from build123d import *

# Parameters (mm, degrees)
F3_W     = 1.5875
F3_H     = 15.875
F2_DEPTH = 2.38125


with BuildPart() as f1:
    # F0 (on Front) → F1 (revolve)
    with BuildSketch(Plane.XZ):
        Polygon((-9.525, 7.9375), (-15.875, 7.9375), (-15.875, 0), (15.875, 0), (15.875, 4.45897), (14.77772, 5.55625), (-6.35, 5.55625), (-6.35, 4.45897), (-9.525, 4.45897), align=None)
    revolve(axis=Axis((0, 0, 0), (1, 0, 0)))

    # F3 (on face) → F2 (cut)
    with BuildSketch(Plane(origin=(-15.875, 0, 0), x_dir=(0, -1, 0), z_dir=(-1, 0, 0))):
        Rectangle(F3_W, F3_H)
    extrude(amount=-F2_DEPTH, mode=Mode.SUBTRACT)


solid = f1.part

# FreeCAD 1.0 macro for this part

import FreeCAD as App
import Part
import Sketcher
Q = App.Units.Quantity

doc = App.newDocument("Part")
params = doc.addObject("Spreadsheet::Sheet", "Params")
for row, (alias, value) in enumerate([
    ("sketch1_width", "0.25 in"),
    ("sketch1_width2", "1.25 in"),
    ("sketch1_width3", "0.125 in"),
    ("sketch1_height", "0.3125 in"),
    ("revolution_angle", "360 deg"),
    ("sketch2_width", "0.0625 in"),
    ("sketch2_height", "0.625 in"),
    ("pocket1_length", "0.09375 in"),
], start=1):
    params.set(f"A{row}", alias)
    params.set(f"B{row}", "=" + value)
    params.setAlias(f"B{row}", alias)

body = doc.addObject("PartDesign::Body", "Body")

sketch1 = body.newObject("Sketcher::SketchObject", "Sketch")
sketch1.AttachmentSupport = (doc.getObject("XZ_Plane"), [""])
sketch1.MapMode = "FlatFace"
sketch1.addGeometry([
    Part.LineSegment(App.Vector(-9.5, 7.9, 0), App.Vector(-15.9, 7.9, 0)),
    Part.LineSegment(App.Vector(-15.9, 7.9, 0), App.Vector(-15.9, 0, 0)),
    Part.LineSegment(App.Vector(-15.9, 0, 0), App.Vector(15.9, 0, 0)),
    Part.LineSegment(App.Vector(15.9, 0, 0), App.Vector(15.9, 4.5, 0)),
    Part.LineSegment(App.Vector(15.9, 4.5, 0), App.Vector(14.8, 5.6, 0)),
    Part.LineSegment(App.Vector(14.8, 5.6, 0), App.Vector(-6.3, 5.6, 0)),
    Part.LineSegment(App.Vector(-6.3, 5.6, 0), App.Vector(-6.3, 4.5, 0)),
    Part.LineSegment(App.Vector(-6.3, 4.5, 0), App.Vector(-9.5, 4.5, 0)),
    Part.LineSegment(App.Vector(-9.5, 4.5, 0), App.Vector(-9.5, 7.9, 0)),
], False)
sketch1.addConstraint([
    Sketcher.Constraint("Coincident", 0, 2, 1, 1),
    Sketcher.Constraint("Coincident", 1, 2, 2, 1),
    Sketcher.Constraint("Coincident", 2, 2, 3, 1),
    Sketcher.Constraint("Coincident", 3, 2, 4, 1),
    Sketcher.Constraint("Coincident", 4, 2, 5, 1),
    Sketcher.Constraint("Coincident", 5, 2, 6, 1),
    Sketcher.Constraint("Coincident", 6, 2, 7, 1),
    Sketcher.Constraint("Coincident", 7, 2, 8, 1),
    Sketcher.Constraint("Coincident", 8, 2, 0, 1),
    Sketcher.Constraint("Horizontal", 0),
    Sketcher.Constraint("Vertical", 1),
    Sketcher.Constraint("Horizontal", 2),
    Sketcher.Constraint("Vertical", 3),
    Sketcher.Constraint("Horizontal", 5),
    Sketcher.Constraint("Vertical", 6),
    Sketcher.Constraint("Horizontal", 7),
    Sketcher.Constraint("Vertical", 8),
    Sketcher.Constraint("Symmetric", 1, 2, 2, 2, -1, 1),
    Sketcher.Constraint("Horizontal", 3, 2, 6, 2),
    Sketcher.Constraint("Angle", 4, Q("135 deg")),
    Sketcher.Constraint("DistanceX", 0, 2, 0, 1, Q("0.25 in")),
    Sketcher.Constraint("DistanceX", 2, 1, 2, 2, Q("1.25 in")),
    Sketcher.Constraint("DistanceX", 7, 2, 7, 1, Q("0.125 in")),
    Sketcher.Constraint("DistanceY", 1, 2, 1, 1, Q("0.3125 in")),
    Sketcher.Constraint("DistanceX", 5, 2, 5, 1, Q("0.8318 in")),
    Sketcher.Constraint("DistanceY", -1, 1, 4, 2, Q("0.21875 in")),
])
sketch1.setExpression("Constraints[20]", "Params.sketch1_width")
sketch1.setExpression("Constraints[21]", "Params.sketch1_width2")
sketch1.setExpression("Constraints[22]", "Params.sketch1_width3")
sketch1.setExpression("Constraints[23]", "Params.sketch1_height")
revolution = body.newObject("PartDesign::Revolution", "Revolution")
revolution.Profile = sketch1
revolution.ReferenceAxis = (sketch1, ["H_Axis"])
revolution.setExpression("Angle", "Params.revolution_angle")

sketch2 = body.newObject("Sketcher::SketchObject", "Sketch001")
sketch2.AttachmentSupport = (doc.getObject("YZ_Plane"), [""])
sketch2.MapMode = "FlatFace"
sketch2.AttachmentOffset = App.Placement(App.Vector(0, 0, -0.625 * 25.4), App.Rotation())
sketch2.addGeometry([
    Part.LineSegment(App.Vector(0.8, 7.9, 0), App.Vector(0.8, -7.9, 0)),
    Part.LineSegment(App.Vector(0.8, -7.9, 0), App.Vector(-0.8, -7.9, 0)),
    Part.LineSegment(App.Vector(-0.8, -7.9, 0), App.Vector(-0.8, 7.9, 0)),
    Part.LineSegment(App.Vector(-0.8, 7.9, 0), App.Vector(0.8, 7.9, 0)),
], False)
sketch2.addConstraint([
    Sketcher.Constraint("Coincident", 0, 2, 1, 1),
    Sketcher.Constraint("Coincident", 1, 2, 2, 1),
    Sketcher.Constraint("Coincident", 2, 2, 3, 1),
    Sketcher.Constraint("Coincident", 3, 2, 0, 1),
    Sketcher.Constraint("Vertical", 0),
    Sketcher.Constraint("Horizontal", 1),
    Sketcher.Constraint("Vertical", 2),
    Sketcher.Constraint("Horizontal", 3),
    Sketcher.Constraint("Symmetric", 0, 2, 2, 2, -1, 1),
    Sketcher.Constraint("DistanceX", 1, 2, 1, 1, Q("0.0625 in")),
    Sketcher.Constraint("DistanceY", 0, 2, 0, 1, Q("0.625 in")),
])
sketch2.setExpression("Constraints[9]", "Params.sketch2_width")
sketch2.setExpression("Constraints[10]", "Params.sketch2_height")
pocket1 = body.newObject("PartDesign::Pocket", "Pocket")
pocket1.Profile = sketch2
pocket1.setExpression("Length", "Params.pocket1_length")
pocket1.Reversed = True

doc.recompute()
